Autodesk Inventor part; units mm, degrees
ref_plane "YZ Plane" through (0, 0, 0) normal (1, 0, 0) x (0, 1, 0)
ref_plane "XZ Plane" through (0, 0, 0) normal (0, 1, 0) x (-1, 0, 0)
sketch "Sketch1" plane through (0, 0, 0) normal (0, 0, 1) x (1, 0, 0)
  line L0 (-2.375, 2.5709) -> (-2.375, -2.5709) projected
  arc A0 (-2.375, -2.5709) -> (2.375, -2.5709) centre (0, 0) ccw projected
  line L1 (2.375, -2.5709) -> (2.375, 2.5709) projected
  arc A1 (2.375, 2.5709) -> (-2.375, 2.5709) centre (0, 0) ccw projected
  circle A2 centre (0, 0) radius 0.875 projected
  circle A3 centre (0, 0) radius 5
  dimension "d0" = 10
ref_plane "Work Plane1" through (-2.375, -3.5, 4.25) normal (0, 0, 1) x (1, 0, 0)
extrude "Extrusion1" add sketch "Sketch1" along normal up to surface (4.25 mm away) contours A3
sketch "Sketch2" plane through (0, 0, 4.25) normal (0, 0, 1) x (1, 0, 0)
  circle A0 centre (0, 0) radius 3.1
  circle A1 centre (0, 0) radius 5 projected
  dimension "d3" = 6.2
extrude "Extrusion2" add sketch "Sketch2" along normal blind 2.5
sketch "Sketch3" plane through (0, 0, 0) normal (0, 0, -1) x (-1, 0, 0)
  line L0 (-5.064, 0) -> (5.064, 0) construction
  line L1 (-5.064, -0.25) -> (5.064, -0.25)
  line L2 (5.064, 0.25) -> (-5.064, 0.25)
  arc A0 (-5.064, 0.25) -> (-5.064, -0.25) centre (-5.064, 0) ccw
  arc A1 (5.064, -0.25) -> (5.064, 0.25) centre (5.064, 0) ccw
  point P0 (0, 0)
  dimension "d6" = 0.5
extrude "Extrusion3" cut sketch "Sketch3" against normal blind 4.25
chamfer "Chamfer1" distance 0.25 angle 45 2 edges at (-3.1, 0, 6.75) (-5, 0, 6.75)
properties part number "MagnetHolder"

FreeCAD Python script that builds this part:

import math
import FreeCAD as App
import Part
import Sketcher

V = App.Vector


def edges_at(feature, points):
    """Names of the edges that pass closest to the given points."""
    edges = feature.Shape.Edges
    near = lambda p: min(range(len(edges)), key=lambda i: edges[i].distToShape(Part.Vertex(*p))[0])
    return sorted({f"Edge{near(p) + 1}" for p in points})

doc = App.newDocument("Part")
body = doc.addObject("PartDesign::Body", "Body")

# Sketch on XY plane
sketch1 = doc.addObject("Sketcher::SketchObject", "Sketch")
body.addObject(sketch1)
sketch1.AttachmentSupport = (doc.XY_Plane, [""])
sketch1.MapMode = "FlatFace"
sketch1.addGeometry(Part.Circle(V(0, 0, 0), V(0, 0, 1), 5), False)
sketch1.addGeometry(Part.LineSegment(V(-2.4, -2.6, 0), V(-2.4, 2.6, 0)), False)
sketch1.addGeometry(Part.ArcOfCircle(Part.Circle(V(0, 0, 0), V(0, 0, 1), 3.5), math.radians(47), math.radians(133)), False)
sketch1.addGeometry(Part.LineSegment(V(2.4, 2.6, 0), V(2.4, -2.6, 0)), False)
sketch1.addGeometry(Part.ArcOfCircle(Part.Circle(V(0, 0, 0), V(0, 0, 1), 3.5), math.radians(-133), math.radians(-47)), False)
sketch1.addConstraint(Sketcher.Constraint("Coincident", 1, 2, 2, 2))
sketch1.addConstraint(Sketcher.Constraint("Coincident", 2, 1, 3, 1))
sketch1.addConstraint(Sketcher.Constraint("Coincident", 3, 2, 4, 2))
sketch1.addConstraint(Sketcher.Constraint("Coincident", 4, 1, 1, 1))
sketch1.addConstraint(Sketcher.Constraint("Vertical", 1))
sketch1.addConstraint(Sketcher.Constraint("Vertical", 3))
sketch1.addConstraint(Sketcher.Constraint("Coincident", 0, 3, -1, 1))
sketch1.addConstraint(Sketcher.Constraint("Coincident", 2, 3, -1, 1))
sketch1.addConstraint(Sketcher.Constraint("Coincident", 4, 3, -1, 1))
sketch1.addConstraint(Sketcher.Constraint("Equal", 2, 4))
sketch1.addConstraint(Sketcher.Constraint("Horizontal", 1, 2, 2, 1))
sketch1.addConstraint(Sketcher.Constraint("Diameter", 0, 10.0))
sketch1.addConstraint(Sketcher.Constraint("Radius", 2, 3.5))
sketch1.addConstraint(Sketcher.Constraint("DistanceX", 1, 2, 2, 1, 4.75))
pad1 = doc.addObject("PartDesign::Pad", "Pad")
body.addObject(pad1)
pad1.Profile = sketch1
pad1.Length = 4.25

# Sketch on XY plane
sketch2 = doc.addObject("Sketcher::SketchObject", "Sketch001")
body.addObject(sketch2)
sketch2.AttachmentSupport = (doc.XY_Plane, [""])
sketch2.MapMode = "FlatFace"
sketch2.AttachmentOffset = App.Placement(V(0, 0, 4.25), App.Rotation())
sketch2.addGeometry(Part.Circle(V(0, 0, 0), V(0, 0, 1), 5), False)
sketch2.addGeometry(Part.Circle(V(0, 0, 0), V(0, 0, 1), 3.1), False)
sketch2.addConstraint(Sketcher.Constraint("Coincident", 0, 3, -1, 1))
sketch2.addConstraint(Sketcher.Constraint("Coincident", 1, 3, -1, 1))
sketch2.addConstraint(Sketcher.Constraint("Diameter", 1, 6.2))
sketch2.addConstraint(Sketcher.Constraint("Diameter", 0, 10.0))
pad2 = doc.addObject("PartDesign::Pad", "Pad001")
body.addObject(pad2)
pad2.Profile = sketch2
pad2.Length = 2.5

# Sketch on XY plane
sketch3 = doc.addObject("Sketcher::SketchObject", "Sketch002")
body.addObject(sketch3)
sketch3.AttachmentSupport = (doc.XY_Plane, [""])
sketch3.MapMode = "FlatFace"
sketch3.addGeometry(Part.ArcOfCircle(Part.Circle(V(5.06, 0, 0), V(0, 0, 1), 0.25), math.radians(-90), math.radians(90)), False)
sketch3.addGeometry(Part.LineSegment(V(5.06, -0.25, 0), V(-5.06, -0.25, 0)), False)
sketch3.addGeometry(Part.ArcOfCircle(Part.Circle(V(-5.06, 0, 0), V(0, 0, 1), 0.25), math.radians(90), math.radians(270)), False)
sketch3.addGeometry(Part.LineSegment(V(-5.06, 0.25, 0), V(5.06, 0.25, 0)), False)
sketch3.addConstraint(Sketcher.Constraint("Tangent", 0, 1, 1, 1))
sketch3.addConstraint(Sketcher.Constraint("Tangent", 1, 2, 2, 2))
sketch3.addConstraint(Sketcher.Constraint("Tangent", 2, 1, 3, 1))
sketch3.addConstraint(Sketcher.Constraint("Tangent", 3, 2, 0, 2))
sketch3.addConstraint(Sketcher.Constraint("Horizontal", 1))
sketch3.addConstraint(Sketcher.Constraint("Horizontal", 3))
sketch3.addConstraint(Sketcher.Constraint("Symmetric", 0, 3, 2, 3, -1, 1))
sketch3.addConstraint(Sketcher.Constraint("Radius", 0, 0.25))
sketch3.addConstraint(Sketcher.Constraint("DistanceX", 1, 2, 1, 1, 10.128))
pocket1 = doc.addObject("PartDesign::Pocket", "Pocket")
body.addObject(pocket1)
pocket1.Profile = sketch3
pocket1.Length = 4.25
pocket1.Reversed = True
doc.recompute()

chamfer = doc.addObject("PartDesign::Chamfer", "Chamfer")
body.addObject(chamfer)
chamfer.Base = (pocket1, edges_at(pocket1, [(-3.1, 0, 6.75), (-5, 0, 6.75)]))
chamfer.Size = 0.25

doc.recompute()
